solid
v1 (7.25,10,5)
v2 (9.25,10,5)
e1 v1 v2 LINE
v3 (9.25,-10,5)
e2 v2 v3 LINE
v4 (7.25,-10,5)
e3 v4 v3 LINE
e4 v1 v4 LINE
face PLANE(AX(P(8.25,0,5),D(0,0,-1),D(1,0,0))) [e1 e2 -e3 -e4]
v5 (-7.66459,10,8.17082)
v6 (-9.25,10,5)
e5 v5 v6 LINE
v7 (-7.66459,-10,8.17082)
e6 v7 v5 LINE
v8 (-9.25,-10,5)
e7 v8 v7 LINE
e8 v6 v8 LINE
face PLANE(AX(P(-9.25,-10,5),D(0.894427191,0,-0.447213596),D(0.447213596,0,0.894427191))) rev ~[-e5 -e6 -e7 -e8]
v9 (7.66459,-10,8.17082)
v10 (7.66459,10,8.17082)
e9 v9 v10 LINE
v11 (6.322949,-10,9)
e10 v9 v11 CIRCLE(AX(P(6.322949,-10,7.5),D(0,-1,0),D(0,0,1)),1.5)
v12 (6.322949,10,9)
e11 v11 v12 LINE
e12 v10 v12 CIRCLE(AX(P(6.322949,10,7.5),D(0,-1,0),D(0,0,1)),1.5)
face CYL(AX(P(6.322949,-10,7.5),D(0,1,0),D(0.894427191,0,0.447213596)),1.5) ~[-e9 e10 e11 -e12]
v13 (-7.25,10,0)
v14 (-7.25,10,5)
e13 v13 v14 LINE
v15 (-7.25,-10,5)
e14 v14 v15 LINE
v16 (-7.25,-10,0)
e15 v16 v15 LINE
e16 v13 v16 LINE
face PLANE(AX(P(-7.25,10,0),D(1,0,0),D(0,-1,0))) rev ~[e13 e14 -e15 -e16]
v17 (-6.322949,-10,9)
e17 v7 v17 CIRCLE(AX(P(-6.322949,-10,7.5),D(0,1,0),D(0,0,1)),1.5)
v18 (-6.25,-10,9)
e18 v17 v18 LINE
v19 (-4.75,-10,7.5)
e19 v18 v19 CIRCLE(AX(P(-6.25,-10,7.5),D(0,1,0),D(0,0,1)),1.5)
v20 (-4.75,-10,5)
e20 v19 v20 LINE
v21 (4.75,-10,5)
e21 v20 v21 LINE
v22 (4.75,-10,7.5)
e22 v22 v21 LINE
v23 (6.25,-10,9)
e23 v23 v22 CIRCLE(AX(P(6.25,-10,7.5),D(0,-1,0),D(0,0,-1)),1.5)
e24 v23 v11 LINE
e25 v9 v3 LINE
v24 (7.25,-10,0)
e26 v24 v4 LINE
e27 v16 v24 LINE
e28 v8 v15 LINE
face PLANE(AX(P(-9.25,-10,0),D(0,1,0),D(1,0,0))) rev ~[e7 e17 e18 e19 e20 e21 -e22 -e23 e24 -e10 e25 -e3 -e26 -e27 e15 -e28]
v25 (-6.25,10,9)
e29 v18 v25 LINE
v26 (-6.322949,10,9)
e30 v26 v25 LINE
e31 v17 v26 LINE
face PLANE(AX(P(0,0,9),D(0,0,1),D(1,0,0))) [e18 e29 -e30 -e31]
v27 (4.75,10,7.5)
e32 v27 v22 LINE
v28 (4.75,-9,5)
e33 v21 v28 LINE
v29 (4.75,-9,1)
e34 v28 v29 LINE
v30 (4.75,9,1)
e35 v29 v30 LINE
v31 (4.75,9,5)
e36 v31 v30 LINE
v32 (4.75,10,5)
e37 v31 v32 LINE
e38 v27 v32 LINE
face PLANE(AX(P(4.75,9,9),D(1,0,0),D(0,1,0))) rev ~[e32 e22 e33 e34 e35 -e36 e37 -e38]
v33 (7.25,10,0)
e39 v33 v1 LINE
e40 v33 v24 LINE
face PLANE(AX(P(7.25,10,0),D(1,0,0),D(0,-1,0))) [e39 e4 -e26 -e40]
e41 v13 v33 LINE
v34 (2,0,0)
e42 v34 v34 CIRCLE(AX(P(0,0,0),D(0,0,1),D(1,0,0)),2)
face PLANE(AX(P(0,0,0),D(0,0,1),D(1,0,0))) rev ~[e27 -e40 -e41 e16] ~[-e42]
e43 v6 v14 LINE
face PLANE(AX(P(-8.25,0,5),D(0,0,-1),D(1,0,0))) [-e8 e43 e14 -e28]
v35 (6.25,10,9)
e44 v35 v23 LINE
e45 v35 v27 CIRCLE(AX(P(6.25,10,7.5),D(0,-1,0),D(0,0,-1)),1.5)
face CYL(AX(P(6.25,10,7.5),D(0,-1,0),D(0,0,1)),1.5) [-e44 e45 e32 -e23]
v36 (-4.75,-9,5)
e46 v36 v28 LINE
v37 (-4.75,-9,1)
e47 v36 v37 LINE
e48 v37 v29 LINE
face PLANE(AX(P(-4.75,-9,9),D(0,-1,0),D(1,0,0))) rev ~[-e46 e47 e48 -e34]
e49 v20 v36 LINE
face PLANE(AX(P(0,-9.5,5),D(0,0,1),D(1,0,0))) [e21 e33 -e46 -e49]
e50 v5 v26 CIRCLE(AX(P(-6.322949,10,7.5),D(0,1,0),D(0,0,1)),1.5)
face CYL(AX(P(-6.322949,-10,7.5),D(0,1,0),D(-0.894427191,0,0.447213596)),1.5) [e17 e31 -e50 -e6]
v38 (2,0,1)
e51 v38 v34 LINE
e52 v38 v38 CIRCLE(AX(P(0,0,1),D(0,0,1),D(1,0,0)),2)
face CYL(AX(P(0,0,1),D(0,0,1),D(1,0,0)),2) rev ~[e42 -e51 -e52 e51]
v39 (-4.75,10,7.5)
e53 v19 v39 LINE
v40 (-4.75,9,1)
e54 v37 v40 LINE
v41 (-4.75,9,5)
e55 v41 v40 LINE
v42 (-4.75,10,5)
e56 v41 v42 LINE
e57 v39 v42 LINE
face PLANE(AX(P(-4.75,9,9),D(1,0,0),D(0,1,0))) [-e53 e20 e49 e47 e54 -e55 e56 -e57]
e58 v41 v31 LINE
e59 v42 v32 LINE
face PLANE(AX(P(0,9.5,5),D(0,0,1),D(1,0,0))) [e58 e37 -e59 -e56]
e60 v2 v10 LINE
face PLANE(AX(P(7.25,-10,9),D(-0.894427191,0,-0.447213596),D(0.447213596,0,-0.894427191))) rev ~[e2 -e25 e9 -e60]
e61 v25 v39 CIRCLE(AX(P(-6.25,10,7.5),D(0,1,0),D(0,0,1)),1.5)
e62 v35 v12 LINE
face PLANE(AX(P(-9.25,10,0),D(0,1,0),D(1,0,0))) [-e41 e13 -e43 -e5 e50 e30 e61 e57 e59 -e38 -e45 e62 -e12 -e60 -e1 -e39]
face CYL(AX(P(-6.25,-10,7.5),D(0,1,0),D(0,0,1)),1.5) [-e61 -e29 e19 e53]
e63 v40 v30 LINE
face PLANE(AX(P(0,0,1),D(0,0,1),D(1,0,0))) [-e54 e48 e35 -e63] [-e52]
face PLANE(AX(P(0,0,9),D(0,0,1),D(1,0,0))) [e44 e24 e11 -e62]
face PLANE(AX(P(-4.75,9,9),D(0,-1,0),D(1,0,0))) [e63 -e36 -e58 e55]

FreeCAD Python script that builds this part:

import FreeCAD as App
import Part
import Sketcher

V = App.Vector


def edges_at(feature, points):
    """Names of the edges that pass closest to the given points."""
    edges = feature.Shape.Edges
    near = lambda p: min(range(len(edges)), key=lambda i: edges[i].distToShape(Part.Vertex(*p))[0])
    return sorted({f"Edge{near(p) + 1}" for p in points})

doc = App.newDocument("Part")
body = doc.addObject("PartDesign::Body", "Body")

sketch1 = doc.addObject("Sketcher::SketchObject", "Sketch")
body.addObject(sketch1)
sketch1.AttachmentSupport = (doc.XY_Plane, [""])
sketch1.MapMode = "FlatFace"
sketch1.addGeometry([
    Part.LineSegment(V(-9.25, 10, 0), V(-9.25, -10, 0)),
    Part.LineSegment(V(-9.25, -10, 0), V(9.25, -10, 0)),
    Part.LineSegment(V(9.25, -10, 0), V(9.25, 10, 0)),
    Part.LineSegment(V(9.25, 10, 0), V(-9.25, 10, 0)),
], False)
sketch1.addConstraint([
    Sketcher.Constraint("Coincident", 0, 2, 1, 1),
    Sketcher.Constraint("Coincident", 1, 2, 2, 1),
    Sketcher.Constraint("Coincident", 2, 2, 3, 1),
    Sketcher.Constraint("Coincident", 3, 2, 0, 1),
    Sketcher.Constraint("Vertical", 0),
    Sketcher.Constraint("Horizontal", 1),
    Sketcher.Constraint("Vertical", 2),
    Sketcher.Constraint("Horizontal", 3),
    Sketcher.Constraint("Symmetric", 0, 2, 2, 2, -1, 1),
    Sketcher.Constraint("DistanceY", 0, 2, 0, 1, 20.0),
    Sketcher.Constraint("DistanceX", 1, 1, 1, 2, 18.5),
])
pad1 = doc.addObject("PartDesign::Pad", "Pad")
body.addObject(pad1)
pad1.Profile = sketch1
pad1.Length = 9

sketch2 = doc.addObject("Sketcher::SketchObject", "Sketch001")
body.addObject(sketch2)
sketch2.AttachmentSupport = (doc.XY_Plane, [""])
sketch2.MapMode = "FlatFace"
sketch2.addGeometry([
    Part.LineSegment(V(-9.25, -10, 0), V(-9.25, 10, 0)),
    Part.LineSegment(V(-9.25, 10, 0), V(-7.25, 10, 0)),
    Part.LineSegment(V(-7.25, 10, 0), V(-7.25, -10, 0)),
    Part.LineSegment(V(-7.25, -10, 0), V(-9.25, -10, 0)),
    Part.LineSegment(V(7.25, -10, 0), V(7.25, 10, 0)),
    Part.LineSegment(V(7.25, 10, 0), V(9.25, 10, 0)),
    Part.LineSegment(V(9.25, 10, 0), V(9.25, -10, 0)),
    Part.LineSegment(V(9.25, -10, 0), V(7.25, -10, 0)),
], False)
sketch2.addConstraint([
    Sketcher.Constraint("Coincident", 0, 2, 1, 1),
    Sketcher.Constraint("Coincident", 1, 2, 2, 1),
    Sketcher.Constraint("Coincident", 2, 2, 3, 1),
    Sketcher.Constraint("Coincident", 3, 2, 0, 1),
    Sketcher.Constraint("Coincident", 4, 2, 5, 1),
    Sketcher.Constraint("Coincident", 5, 2, 6, 1),
    Sketcher.Constraint("Coincident", 6, 2, 7, 1),
    Sketcher.Constraint("Coincident", 7, 2, 4, 1),
    Sketcher.Constraint("Vertical", 0),
    Sketcher.Constraint("Horizontal", 1),
    Sketcher.Constraint("Vertical", 2),
    Sketcher.Constraint("Horizontal", 3),
    Sketcher.Constraint("Vertical", 4),
    Sketcher.Constraint("Horizontal", 5),
    Sketcher.Constraint("Vertical", 6),
    Sketcher.Constraint("Horizontal", 7),
    Sketcher.Constraint("Symmetric", 2, 2, 4, 2, -1, 1),
    Sketcher.Constraint("Symmetric", 0, 2, 6, 2, -1, 1),
    Sketcher.Constraint("Horizontal", 1, 2, 4, 2),
    Sketcher.Constraint("DistanceX", 1, 1, 1, 2, 2.0),
    Sketcher.Constraint("DistanceY", 0, 1, 0, 2, 20.0),
    Sketcher.Constraint("DistanceX", 1, 2, 4, 2, 14.5),
])
pocket1 = doc.addObject("PartDesign::Pocket", "Pocket")
body.addObject(pocket1)
pocket1.Profile = sketch2
pocket1.Length = 5
pocket1.Reversed = True

sketch3 = doc.addObject("Sketcher::SketchObject", "Sketch002")
body.addObject(sketch3)
sketch3.AttachmentSupport = (doc.XY_Plane, [""])
sketch3.MapMode = "FlatFace"
sketch3.AttachmentOffset = App.Placement(V(0, 0, 9), App.Rotation())
sketch3.addGeometry([
    Part.LineSegment(V(-4.75, 9, 0), V(-4.75, -9, 0)),
    Part.LineSegment(V(-4.75, -9, 0), V(4.75, -9, 0)),
    Part.LineSegment(V(4.75, -9, 0), V(4.75, 9, 0)),
    Part.LineSegment(V(4.75, 9, 0), V(-4.75, 9, 0)),
], False)
sketch3.addConstraint([
    Sketcher.Constraint("Coincident", 0, 2, 1, 1),
    Sketcher.Constraint("Coincident", 1, 2, 2, 1),
    Sketcher.Constraint("Coincident", 2, 2, 3, 1),
    Sketcher.Constraint("Coincident", 3, 2, 0, 1),
    Sketcher.Constraint("Vertical", 0),
    Sketcher.Constraint("Horizontal", 1),
    Sketcher.Constraint("Vertical", 2),
    Sketcher.Constraint("Horizontal", 3),
    Sketcher.Constraint("Symmetric", 0, 2, 2, 2, -1, 1),
    Sketcher.Constraint("DistanceY", 0, 2, 0, 1, 18.0),
    Sketcher.Constraint("DistanceX", 1, 1, 1, 2, 9.5),
])
pocket2 = doc.addObject("PartDesign::Pocket", "Pocket001")
body.addObject(pocket2)
pocket2.Profile = sketch3
pocket2.Length = 8

sketch4 = doc.addObject("Sketcher::SketchObject", "Sketch003")
body.addObject(sketch4)
sketch4.AttachmentSupport = (doc.XY_Plane, [""])
sketch4.MapMode = "FlatFace"
sketch4.AttachmentOffset = App.Placement(V(0, 0, 9), App.Rotation())
sketch4.addGeometry([
    Part.LineSegment(V(-4.75, -9, 0), V(-4.75, -10, 0)),
    Part.LineSegment(V(-4.75, -10, 0), V(4.75, -10, 0)),
    Part.LineSegment(V(4.75, -10, 0), V(4.75, -9, 0)),
    Part.LineSegment(V(4.75, -9, 0), V(-4.75, -9, 0)),
    Part.LineSegment(V(-4.75, 10, 0), V(-4.75, 9, 0)),
    Part.LineSegment(V(-4.75, 9, 0), V(4.75, 9, 0)),
    Part.LineSegment(V(4.75, 9, 0), V(4.75, 10, 0)),
    Part.LineSegment(V(4.75, 10, 0), V(-4.75, 10, 0)),
], False)
sketch4.addConstraint([
    Sketcher.Constraint("Coincident", 0, 2, 1, 1),
    Sketcher.Constraint("Coincident", 1, 2, 2, 1),
    Sketcher.Constraint("Coincident", 2, 2, 3, 1),
    Sketcher.Constraint("Coincident", 3, 2, 0, 1),
    Sketcher.Constraint("Coincident", 4, 2, 5, 1),
    Sketcher.Constraint("Coincident", 5, 2, 6, 1),
    Sketcher.Constraint("Coincident", 6, 2, 7, 1),
    Sketcher.Constraint("Coincident", 7, 2, 4, 1),
    Sketcher.Constraint("Vertical", 0),
    Sketcher.Constraint("Horizontal", 1),
    Sketcher.Constraint("Vertical", 2),
    Sketcher.Constraint("Horizontal", 3),
    Sketcher.Constraint("Vertical", 4),
    Sketcher.Constraint("Horizontal", 5),
    Sketcher.Constraint("Vertical", 6),
    Sketcher.Constraint("Horizontal", 7),
    Sketcher.Constraint("Symmetric", 2, 2, 4, 2, -1, 1),
    Sketcher.Constraint("Symmetric", 0, 2, 6, 2, -1, 1),
    Sketcher.Constraint("Vertical", 3, 2, 4, 2),
    Sketcher.Constraint("DistanceY", 0, 2, 0, 1, 1.0),
    Sketcher.Constraint("DistanceX", 1, 1, 1, 2, 9.5),
    Sketcher.Constraint("DistanceY", 0, 2, -1, 1, 10.0),
])
pocket3 = doc.addObject("PartDesign::Pocket", "Pocket002")
body.addObject(pocket3)
pocket3.Profile = sketch4
pocket3.Length = 4

sketch5 = doc.addObject("Sketcher::SketchObject", "Sketch004")
body.addObject(sketch5)
sketch5.AttachmentSupport = (doc.XY_Plane, [""])
sketch5.MapMode = "FlatFace"
sketch5.AttachmentOffset = App.Placement(V(0, 0, 1), App.Rotation())
sketch5.addGeometry(Part.Circle(V(0, 0, 0), V(0, 0, 1), 2), False)
sketch5.addConstraint([
    Sketcher.Constraint("Coincident", 0, 3, -1, 1),
    Sketcher.Constraint("Diameter", 0, 4.0),
])
pocket4 = doc.addObject("PartDesign::Pocket", "Pocket003")
body.addObject(pocket4)
pocket4.Profile = sketch5
pocket4.Length = 25

sketch6 = doc.addObject("Sketcher::SketchObject", "Sketch005")
body.addObject(sketch6)
sketch6.AttachmentSupport = (doc.XZ_Plane, [""])
sketch6.MapMode = "FlatFace"
sketch6.AttachmentOffset = App.Placement(V(0, 0, 10), App.Rotation())
sketch6.addGeometry([
    Part.LineSegment(V(-9.25, 9, 0), V(-9.25, 5, 0)),
    Part.LineSegment(V(-9.25, 5, 0), V(-7.25, 9, 0)),
    Part.LineSegment(V(-7.25, 9, 0), V(-9.25, 9, 0)),
    Part.LineSegment(V(7.25, 9, 0), V(9.25, 5, 0)),
    Part.LineSegment(V(9.25, 5, 0), V(9.25, 9, 0)),
    Part.LineSegment(V(9.25, 9, 0), V(7.25, 9, 0)),
], False)
sketch6.addConstraint([
    Sketcher.Constraint("Coincident", 0, 2, 1, 1),
    Sketcher.Constraint("Coincident", 1, 2, 2, 1),
    Sketcher.Constraint("Coincident", 2, 2, 0, 1),
    Sketcher.Constraint("Coincident", 3, 2, 4, 1),
    Sketcher.Constraint("Coincident", 4, 2, 5, 1),
    Sketcher.Constraint("Coincident", 5, 2, 3, 1),
    Sketcher.Constraint("Vertical", 0),
    Sketcher.Constraint("Horizontal", 2),
    Sketcher.Constraint("Vertical", 4),
    Sketcher.Constraint("Horizontal", 5),
    Sketcher.Constraint("Symmetric", 0, 2, 3, 2, -2),
    Sketcher.Constraint("Symmetric", 1, 2, 5, 2, -2),
    Sketcher.Constraint("DistanceX", 2, 2, 2, 1, 2.0),
    Sketcher.Constraint("DistanceY", 0, 2, 0, 1, 4.0),
    Sketcher.Constraint("DistanceY", -1, 1, 0, 2, 5.0),
    Sketcher.Constraint("DistanceX", 1, 2, 3, 2, 16.5),
])
pocket5 = doc.addObject("PartDesign::Pocket", "Pocket004")
body.addObject(pocket5)
pocket5.Profile = sketch6
pocket5.Type = "ThroughAll"
doc.recompute()

fillet = doc.addObject("PartDesign::Fillet", "Fillet")
body.addObject(fillet)
fillet.Base = (pocket5, edges_at(pocket5, [
    (-4.75, 0, 9),
    (-7.25, 0, 9),
    (4.75, 0, 9),
    (7.25, 0, 9),
]))
fillet.Radius = 1.5

doc.recompute()
